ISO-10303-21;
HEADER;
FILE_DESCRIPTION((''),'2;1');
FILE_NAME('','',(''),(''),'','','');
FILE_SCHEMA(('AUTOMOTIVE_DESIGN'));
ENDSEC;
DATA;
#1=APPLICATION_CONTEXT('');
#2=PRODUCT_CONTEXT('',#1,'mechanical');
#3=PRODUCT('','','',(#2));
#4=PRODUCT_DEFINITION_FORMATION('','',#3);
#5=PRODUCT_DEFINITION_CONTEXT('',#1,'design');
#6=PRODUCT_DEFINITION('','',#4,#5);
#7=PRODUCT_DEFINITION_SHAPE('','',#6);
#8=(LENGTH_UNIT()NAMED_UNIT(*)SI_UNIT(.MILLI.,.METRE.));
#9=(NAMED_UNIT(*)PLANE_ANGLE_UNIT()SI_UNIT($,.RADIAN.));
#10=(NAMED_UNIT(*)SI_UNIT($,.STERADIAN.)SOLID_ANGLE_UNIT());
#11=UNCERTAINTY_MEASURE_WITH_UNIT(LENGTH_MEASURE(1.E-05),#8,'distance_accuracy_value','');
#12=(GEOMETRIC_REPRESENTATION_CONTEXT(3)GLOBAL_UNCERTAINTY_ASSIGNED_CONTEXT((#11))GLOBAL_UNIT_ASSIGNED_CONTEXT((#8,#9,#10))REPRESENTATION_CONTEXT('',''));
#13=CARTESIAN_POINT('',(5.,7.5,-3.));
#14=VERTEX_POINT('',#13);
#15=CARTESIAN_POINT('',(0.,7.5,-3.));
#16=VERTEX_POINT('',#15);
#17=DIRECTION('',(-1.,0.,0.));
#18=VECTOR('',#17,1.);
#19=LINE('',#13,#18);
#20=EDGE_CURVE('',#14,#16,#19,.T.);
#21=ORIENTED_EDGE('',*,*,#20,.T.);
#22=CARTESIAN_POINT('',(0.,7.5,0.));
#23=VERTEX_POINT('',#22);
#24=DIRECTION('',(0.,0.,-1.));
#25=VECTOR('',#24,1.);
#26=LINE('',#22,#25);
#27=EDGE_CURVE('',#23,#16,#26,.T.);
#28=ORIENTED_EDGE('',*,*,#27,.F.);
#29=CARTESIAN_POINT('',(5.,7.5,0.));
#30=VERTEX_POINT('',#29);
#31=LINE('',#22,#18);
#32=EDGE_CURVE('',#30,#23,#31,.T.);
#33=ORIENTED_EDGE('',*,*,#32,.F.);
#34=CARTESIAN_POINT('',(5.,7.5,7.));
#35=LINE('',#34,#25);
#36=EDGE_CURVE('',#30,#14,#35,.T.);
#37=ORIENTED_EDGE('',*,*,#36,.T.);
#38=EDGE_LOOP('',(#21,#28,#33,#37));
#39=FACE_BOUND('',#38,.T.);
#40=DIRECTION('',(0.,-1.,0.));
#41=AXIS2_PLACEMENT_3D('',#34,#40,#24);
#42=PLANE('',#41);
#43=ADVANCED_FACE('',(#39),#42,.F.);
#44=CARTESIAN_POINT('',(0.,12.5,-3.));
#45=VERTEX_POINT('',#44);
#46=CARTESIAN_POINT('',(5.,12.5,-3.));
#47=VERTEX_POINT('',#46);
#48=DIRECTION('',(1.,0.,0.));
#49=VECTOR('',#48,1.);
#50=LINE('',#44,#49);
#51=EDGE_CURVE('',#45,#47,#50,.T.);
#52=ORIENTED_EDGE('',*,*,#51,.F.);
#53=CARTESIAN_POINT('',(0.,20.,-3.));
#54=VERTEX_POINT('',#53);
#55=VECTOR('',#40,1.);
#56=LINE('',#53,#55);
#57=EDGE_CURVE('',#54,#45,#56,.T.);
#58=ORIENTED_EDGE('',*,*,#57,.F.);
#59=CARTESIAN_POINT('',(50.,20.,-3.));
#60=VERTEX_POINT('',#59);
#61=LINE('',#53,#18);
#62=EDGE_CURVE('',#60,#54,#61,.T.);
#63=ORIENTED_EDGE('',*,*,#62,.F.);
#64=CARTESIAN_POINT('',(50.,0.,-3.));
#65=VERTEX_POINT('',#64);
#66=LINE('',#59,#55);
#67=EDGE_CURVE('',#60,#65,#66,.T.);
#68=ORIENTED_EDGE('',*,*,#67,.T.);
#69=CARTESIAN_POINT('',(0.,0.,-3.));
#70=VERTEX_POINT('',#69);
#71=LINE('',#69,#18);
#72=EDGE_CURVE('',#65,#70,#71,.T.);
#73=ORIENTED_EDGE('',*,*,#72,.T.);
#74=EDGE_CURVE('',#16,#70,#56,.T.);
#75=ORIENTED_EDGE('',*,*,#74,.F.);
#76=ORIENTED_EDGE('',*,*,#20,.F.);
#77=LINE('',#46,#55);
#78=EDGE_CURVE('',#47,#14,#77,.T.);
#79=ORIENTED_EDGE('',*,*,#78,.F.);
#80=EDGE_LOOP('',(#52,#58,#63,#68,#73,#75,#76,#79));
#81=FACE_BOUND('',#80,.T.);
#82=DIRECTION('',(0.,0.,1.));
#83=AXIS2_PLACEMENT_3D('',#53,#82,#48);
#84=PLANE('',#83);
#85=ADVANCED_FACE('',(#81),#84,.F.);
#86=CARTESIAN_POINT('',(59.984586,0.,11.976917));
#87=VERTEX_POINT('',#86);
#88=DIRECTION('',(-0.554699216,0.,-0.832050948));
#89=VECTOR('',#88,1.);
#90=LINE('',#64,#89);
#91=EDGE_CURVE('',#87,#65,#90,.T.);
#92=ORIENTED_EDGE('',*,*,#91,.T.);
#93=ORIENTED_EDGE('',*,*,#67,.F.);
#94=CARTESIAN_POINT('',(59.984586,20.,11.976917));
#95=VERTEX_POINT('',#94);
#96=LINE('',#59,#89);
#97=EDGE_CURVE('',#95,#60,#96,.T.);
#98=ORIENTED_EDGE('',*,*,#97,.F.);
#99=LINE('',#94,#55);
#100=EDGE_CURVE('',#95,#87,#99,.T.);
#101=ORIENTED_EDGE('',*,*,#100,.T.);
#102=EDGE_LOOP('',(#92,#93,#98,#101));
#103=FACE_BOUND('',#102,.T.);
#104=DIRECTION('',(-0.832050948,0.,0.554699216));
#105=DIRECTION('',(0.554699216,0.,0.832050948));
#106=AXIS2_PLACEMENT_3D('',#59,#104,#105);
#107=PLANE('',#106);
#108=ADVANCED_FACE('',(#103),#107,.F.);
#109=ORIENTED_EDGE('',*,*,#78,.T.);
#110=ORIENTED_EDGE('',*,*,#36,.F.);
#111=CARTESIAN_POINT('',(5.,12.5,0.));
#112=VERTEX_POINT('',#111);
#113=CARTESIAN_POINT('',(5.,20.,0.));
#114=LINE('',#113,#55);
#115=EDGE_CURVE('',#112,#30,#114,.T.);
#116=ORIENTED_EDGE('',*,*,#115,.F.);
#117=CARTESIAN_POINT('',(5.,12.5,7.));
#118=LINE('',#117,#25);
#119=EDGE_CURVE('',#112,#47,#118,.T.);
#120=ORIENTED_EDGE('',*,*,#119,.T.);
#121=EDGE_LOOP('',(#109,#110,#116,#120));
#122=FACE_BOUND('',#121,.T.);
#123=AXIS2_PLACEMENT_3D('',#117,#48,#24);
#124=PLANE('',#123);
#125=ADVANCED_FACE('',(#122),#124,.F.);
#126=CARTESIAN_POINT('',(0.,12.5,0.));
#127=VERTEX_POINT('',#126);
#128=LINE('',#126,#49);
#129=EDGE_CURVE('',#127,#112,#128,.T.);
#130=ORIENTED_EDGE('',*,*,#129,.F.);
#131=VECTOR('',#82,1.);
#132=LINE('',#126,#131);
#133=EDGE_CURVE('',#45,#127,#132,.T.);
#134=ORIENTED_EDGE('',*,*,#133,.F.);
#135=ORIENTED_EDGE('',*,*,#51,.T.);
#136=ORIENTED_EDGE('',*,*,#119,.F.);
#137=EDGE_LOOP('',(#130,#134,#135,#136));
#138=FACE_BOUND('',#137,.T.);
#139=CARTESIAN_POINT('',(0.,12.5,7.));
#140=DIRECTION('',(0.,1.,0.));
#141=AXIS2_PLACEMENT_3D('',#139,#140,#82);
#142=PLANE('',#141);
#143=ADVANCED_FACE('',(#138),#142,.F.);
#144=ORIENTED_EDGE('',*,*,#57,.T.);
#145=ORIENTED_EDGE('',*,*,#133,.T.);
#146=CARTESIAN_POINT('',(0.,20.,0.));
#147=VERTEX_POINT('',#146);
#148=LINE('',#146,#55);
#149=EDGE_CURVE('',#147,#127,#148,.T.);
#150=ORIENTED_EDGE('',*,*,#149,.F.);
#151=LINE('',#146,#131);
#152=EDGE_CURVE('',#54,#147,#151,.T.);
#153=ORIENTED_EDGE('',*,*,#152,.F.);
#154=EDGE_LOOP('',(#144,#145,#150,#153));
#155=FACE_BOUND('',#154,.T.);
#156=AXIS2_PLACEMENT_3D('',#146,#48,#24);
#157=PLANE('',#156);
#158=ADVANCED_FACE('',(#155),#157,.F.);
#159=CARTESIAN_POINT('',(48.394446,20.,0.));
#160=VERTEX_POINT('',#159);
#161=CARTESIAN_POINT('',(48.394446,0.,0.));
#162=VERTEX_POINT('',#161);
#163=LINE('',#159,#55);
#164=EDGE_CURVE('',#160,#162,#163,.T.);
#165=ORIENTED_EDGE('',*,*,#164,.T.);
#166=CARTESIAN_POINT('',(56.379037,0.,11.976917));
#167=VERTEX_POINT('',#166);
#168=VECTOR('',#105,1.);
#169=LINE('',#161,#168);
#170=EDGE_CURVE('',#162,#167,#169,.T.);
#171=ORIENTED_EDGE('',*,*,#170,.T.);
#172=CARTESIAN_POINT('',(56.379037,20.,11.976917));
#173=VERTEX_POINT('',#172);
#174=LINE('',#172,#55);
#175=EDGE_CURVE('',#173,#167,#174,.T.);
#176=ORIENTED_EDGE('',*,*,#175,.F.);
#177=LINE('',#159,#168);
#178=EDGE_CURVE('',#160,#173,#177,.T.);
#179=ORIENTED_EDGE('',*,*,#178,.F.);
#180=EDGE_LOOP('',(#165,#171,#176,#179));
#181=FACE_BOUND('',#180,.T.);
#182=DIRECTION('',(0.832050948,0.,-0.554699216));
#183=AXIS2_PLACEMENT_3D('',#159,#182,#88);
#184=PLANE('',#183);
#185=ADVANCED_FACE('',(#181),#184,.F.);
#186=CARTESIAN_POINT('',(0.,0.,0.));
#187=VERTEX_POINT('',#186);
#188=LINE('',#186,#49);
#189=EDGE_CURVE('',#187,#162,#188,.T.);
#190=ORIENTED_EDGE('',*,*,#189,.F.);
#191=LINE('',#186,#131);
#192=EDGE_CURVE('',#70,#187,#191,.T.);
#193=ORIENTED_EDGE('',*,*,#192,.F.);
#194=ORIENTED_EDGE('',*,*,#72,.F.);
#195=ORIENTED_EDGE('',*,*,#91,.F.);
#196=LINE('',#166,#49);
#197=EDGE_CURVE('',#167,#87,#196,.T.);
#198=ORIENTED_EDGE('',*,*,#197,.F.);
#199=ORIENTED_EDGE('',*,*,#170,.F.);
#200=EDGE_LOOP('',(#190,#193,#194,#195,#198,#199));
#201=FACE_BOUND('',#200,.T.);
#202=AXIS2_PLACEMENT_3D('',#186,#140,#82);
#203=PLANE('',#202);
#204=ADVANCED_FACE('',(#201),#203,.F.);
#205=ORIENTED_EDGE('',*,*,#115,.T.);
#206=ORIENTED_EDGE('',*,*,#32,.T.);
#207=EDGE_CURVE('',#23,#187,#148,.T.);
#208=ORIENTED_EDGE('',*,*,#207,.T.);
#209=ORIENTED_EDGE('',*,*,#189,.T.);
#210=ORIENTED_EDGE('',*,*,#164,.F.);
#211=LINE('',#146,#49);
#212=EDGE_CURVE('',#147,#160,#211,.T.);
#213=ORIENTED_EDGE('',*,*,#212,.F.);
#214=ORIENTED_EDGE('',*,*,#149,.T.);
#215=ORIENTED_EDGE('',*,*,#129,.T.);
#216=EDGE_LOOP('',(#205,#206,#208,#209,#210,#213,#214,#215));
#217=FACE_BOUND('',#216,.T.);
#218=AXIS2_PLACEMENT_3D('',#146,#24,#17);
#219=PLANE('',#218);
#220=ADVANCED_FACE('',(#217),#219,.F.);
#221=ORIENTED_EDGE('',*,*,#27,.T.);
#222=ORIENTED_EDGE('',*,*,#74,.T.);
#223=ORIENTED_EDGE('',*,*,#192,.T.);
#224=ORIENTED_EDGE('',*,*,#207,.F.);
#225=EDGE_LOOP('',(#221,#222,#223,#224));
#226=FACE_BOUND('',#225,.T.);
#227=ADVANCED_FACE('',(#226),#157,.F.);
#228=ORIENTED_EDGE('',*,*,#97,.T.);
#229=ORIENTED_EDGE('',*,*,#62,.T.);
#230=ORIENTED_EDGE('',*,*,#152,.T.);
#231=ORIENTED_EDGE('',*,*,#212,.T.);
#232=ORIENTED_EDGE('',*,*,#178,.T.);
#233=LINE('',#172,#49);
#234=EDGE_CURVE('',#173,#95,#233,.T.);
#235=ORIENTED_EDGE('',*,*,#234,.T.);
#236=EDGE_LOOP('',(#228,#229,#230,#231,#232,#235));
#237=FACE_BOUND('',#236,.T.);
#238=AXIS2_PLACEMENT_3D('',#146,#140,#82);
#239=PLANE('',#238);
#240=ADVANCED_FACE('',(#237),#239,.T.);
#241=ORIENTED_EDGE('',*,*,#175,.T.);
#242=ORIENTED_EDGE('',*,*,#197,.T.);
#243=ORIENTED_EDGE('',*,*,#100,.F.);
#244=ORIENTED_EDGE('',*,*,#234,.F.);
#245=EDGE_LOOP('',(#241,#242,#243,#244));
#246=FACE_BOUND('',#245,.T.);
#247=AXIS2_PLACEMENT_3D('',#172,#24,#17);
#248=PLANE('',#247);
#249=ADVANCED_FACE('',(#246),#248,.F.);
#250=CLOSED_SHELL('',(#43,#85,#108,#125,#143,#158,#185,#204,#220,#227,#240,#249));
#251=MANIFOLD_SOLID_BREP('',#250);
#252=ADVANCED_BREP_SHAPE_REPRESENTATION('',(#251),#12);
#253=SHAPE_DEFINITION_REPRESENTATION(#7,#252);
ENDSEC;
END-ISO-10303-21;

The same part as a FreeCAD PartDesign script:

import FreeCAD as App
import Part
import Sketcher
Q = App.Units.Quantity


def add_polygon(sketch, points):
    """Adds a closed chain of lines whose ends are joined by coincident constraints."""
    first, n = sketch.GeometryCount, len(points)
    for a, b in zip(points, points[1:] + points[:1]):
        sketch.addGeometry(Part.LineSegment(App.Vector(*a, 0), App.Vector(*b, 0)), False)
    for i in range(n):
        sketch.addConstraint(Sketcher.Constraint("Coincident", first + i, 2, first + (i + 1) % n, 1))

doc = App.newDocument("Part")
body = doc.addObject("PartDesign::Body", "Body")

# Sketch on XZ plane
sketch1 = body.newObject("Sketcher::SketchObject", "Sketch")
sketch1.AttachmentSupport = (doc.getObject("XZ_Plane"), [""])
sketch1.MapMode = "FlatFace"
add_polygon(sketch1, [(0, -3), (0, 0), (48.394446, 0), (56.379037, 11.976917), (59.984586, 11.976917), (50, -3)])  # lines 0-5
sketch1.addConstraint(Sketcher.Constraint("Vertical", 0))
sketch1.addConstraint(Sketcher.Constraint("Horizontal", 1))
sketch1.addConstraint(Sketcher.Constraint("Horizontal", 3))
sketch1.addConstraint(Sketcher.Constraint("Horizontal", 5))
sketch1.addConstraint(Sketcher.Constraint("Coincident", 0, 2, -1, 1))
sketch1.addConstraint(Sketcher.Constraint("Parallel", 2, 4))
sketch1.addConstraint(Sketcher.Constraint("DistanceX", 5, 2, 5, 1, 50.0))
sketch1.addConstraint(Sketcher.Constraint("DistanceY", 0, 1, 0, 2, 3.0))
sketch1.addConstraint(Sketcher.Constraint("Distance", 4, 18.0))
sketch1.addConstraint(Sketcher.Constraint("Angle", 2, Q("56.31 deg")))
sketch1.addConstraint(Sketcher.Constraint("DistanceX", 3, 1, 3, 2, 3.605548))
pad1 = body.newObject("PartDesign::Pad", "Pad")
pad1.Profile = sketch1
pad1.Length = 20
pad1.Reversed = True

# Sketch on XY plane
sketch2 = body.newObject("Sketcher::SketchObject", "Sketch001")
sketch2.AttachmentSupport = (doc.getObject("XY_Plane"), [""])
sketch2.MapMode = "FlatFace"
sketch2.AttachmentOffset = App.Placement(App.Vector(0, 0, -3), App.Rotation())
add_polygon(sketch2, [(5, 12.5), (5, 7.5), (0, 7.5), (0, 12.5)])  # lines 0-3
sketch2.addConstraint(Sketcher.Constraint("Vertical", 0))
sketch2.addConstraint(Sketcher.Constraint("Horizontal", 1))
sketch2.addConstraint(Sketcher.Constraint("Vertical", 2))
sketch2.addConstraint(Sketcher.Constraint("Horizontal", 3))
sketch2.addConstraint(Sketcher.Constraint("PointOnObject", 1, 2, -2))
sketch2.addConstraint(Sketcher.Constraint("Equal", 3, 0))
sketch2.addConstraint(Sketcher.Constraint("DistanceX", 1, 2, 1, 1, 5.0))
sketch2.addConstraint(Sketcher.Constraint("DistanceY", -1, 1, 0, 2, 7.5))
pocket1 = body.newObject("PartDesign::Pocket", "Pocket")
pocket1.Profile = sketch2
pocket1.Length = 10
pocket1.Reversed = True

doc.recompute()
